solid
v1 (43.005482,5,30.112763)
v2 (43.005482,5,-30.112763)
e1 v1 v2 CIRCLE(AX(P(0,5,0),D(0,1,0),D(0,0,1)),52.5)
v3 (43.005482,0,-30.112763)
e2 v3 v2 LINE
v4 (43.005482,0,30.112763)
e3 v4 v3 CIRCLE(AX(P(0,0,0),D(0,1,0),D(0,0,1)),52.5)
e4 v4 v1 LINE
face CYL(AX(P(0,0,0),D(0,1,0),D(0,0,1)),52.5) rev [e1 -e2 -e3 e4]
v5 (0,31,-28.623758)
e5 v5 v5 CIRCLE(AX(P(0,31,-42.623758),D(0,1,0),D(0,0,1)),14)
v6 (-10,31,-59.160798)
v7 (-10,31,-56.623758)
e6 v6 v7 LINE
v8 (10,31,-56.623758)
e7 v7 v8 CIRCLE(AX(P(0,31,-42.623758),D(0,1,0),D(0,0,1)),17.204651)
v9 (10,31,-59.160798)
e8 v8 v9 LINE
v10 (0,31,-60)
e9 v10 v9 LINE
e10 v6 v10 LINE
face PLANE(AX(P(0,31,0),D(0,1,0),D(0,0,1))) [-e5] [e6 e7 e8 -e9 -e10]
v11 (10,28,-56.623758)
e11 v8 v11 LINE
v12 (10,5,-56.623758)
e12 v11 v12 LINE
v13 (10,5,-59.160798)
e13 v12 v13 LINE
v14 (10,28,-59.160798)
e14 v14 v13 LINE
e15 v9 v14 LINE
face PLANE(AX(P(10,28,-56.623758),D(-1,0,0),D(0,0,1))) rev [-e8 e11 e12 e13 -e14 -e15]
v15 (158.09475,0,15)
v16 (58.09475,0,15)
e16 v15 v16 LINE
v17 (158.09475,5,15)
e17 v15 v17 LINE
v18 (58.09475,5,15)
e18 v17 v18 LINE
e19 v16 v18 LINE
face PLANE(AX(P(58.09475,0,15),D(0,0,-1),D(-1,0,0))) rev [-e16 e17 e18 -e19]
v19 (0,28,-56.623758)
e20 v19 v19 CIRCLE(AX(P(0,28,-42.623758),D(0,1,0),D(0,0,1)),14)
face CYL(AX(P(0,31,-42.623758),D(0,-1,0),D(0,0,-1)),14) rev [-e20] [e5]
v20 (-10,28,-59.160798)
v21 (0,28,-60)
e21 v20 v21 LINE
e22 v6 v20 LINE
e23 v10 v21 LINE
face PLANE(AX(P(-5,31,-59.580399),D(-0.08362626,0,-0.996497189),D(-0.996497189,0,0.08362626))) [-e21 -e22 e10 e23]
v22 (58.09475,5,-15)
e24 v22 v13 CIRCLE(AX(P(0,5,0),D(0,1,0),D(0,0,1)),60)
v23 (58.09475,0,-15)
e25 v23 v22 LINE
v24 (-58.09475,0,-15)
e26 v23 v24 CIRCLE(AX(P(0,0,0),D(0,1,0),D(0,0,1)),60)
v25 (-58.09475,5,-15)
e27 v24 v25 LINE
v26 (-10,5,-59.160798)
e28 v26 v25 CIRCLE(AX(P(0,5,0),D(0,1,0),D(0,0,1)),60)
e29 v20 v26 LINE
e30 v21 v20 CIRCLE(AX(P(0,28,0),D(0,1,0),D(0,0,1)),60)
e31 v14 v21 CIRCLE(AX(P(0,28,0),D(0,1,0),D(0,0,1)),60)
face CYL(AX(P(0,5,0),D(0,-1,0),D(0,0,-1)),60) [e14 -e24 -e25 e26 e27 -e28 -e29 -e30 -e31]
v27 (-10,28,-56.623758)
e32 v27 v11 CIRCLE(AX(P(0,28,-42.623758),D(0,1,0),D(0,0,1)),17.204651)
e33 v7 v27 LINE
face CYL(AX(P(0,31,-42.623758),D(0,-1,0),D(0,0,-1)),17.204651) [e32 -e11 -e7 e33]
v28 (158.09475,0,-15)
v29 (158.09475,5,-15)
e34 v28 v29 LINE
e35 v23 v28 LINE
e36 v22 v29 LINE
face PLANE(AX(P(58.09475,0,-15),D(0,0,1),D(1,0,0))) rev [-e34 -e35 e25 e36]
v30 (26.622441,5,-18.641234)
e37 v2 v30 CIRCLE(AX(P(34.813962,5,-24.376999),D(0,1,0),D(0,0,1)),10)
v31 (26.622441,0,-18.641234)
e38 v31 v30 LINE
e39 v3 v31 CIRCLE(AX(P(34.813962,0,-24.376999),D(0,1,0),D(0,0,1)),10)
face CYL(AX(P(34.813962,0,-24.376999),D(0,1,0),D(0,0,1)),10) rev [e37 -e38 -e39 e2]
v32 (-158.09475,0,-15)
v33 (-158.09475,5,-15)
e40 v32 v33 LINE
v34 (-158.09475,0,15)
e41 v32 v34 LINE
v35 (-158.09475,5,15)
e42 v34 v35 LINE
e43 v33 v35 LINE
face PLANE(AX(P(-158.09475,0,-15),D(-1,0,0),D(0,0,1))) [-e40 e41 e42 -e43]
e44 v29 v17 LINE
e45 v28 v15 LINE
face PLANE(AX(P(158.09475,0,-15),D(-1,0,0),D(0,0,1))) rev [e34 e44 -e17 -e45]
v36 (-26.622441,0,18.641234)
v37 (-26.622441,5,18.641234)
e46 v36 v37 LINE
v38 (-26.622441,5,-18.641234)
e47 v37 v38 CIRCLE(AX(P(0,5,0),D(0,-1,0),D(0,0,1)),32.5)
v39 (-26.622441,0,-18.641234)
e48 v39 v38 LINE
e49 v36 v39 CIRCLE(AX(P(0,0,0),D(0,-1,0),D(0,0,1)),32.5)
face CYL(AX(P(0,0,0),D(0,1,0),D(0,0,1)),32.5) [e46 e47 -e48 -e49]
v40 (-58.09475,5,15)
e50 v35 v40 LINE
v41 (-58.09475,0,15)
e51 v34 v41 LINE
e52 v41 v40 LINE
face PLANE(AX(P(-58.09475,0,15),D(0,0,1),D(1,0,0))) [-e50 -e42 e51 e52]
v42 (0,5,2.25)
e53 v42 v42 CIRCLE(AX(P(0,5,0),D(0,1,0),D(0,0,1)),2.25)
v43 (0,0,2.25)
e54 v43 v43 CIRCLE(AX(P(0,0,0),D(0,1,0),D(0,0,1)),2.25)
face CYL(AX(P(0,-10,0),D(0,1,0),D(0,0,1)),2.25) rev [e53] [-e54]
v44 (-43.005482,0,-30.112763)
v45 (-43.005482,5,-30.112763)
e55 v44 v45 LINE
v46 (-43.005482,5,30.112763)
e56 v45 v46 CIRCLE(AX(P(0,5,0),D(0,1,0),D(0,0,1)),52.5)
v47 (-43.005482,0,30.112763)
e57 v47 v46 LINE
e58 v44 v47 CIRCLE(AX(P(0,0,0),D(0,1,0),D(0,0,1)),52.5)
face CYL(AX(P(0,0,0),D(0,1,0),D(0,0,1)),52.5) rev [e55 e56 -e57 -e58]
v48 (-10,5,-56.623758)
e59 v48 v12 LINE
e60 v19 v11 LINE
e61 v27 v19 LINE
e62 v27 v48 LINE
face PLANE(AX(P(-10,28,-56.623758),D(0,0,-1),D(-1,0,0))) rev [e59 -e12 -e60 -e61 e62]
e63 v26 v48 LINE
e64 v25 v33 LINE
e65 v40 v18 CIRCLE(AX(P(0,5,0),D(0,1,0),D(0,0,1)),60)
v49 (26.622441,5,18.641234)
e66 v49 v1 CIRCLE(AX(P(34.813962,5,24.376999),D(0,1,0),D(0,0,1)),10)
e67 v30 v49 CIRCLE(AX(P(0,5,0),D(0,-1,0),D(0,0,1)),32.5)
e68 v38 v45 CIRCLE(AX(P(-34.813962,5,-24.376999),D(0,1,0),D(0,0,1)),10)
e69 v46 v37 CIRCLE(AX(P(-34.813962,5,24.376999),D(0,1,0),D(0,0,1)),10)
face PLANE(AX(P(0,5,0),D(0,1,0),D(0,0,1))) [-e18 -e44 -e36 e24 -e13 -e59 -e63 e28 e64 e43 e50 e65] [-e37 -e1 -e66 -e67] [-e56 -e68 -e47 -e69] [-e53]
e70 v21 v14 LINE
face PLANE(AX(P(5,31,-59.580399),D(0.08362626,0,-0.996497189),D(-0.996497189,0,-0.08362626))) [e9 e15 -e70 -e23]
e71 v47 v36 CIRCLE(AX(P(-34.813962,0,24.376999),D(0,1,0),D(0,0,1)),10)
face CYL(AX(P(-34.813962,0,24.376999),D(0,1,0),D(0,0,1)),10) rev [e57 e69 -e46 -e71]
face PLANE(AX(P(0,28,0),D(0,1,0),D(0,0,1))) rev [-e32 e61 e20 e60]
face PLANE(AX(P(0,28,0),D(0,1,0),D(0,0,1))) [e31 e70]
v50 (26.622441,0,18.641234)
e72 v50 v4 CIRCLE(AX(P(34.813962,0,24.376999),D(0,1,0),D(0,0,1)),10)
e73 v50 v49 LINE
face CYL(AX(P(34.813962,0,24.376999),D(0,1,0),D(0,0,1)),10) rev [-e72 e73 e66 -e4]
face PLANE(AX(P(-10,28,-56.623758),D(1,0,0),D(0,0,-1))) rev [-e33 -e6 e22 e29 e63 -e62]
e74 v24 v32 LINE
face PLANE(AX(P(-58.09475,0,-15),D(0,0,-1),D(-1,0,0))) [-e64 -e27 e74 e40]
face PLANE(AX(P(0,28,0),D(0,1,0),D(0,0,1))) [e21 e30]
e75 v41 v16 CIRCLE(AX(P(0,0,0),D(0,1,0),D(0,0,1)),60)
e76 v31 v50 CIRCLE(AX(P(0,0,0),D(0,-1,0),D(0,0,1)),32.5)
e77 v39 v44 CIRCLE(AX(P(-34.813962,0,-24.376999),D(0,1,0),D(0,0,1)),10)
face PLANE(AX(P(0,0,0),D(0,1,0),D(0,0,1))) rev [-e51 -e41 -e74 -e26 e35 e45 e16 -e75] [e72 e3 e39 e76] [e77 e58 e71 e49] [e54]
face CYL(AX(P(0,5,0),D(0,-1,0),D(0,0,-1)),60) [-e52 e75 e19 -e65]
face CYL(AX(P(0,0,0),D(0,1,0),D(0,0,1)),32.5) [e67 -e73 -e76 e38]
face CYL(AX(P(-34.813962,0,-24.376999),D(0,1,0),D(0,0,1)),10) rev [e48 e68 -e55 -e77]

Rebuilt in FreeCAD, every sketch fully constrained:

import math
import FreeCAD as App
import Part
import Sketcher

V = App.Vector

doc = App.newDocument("Part")
body = doc.addObject("PartDesign::Body", "Body")

# Sketch on XZ plane
sketch1 = body.newObject("Sketcher::SketchObject", "Sketch")
sketch1.AttachmentSupport = (doc.getObject("XZ_Plane"), [""])
sketch1.MapMode = "FlatFace"
sketch1.addGeometry(Part.Circle(V(0, 0, 0), V(0, 0, 1), 60), False)
sketch1.addConstraint(Sketcher.Constraint("Coincident", 0, 3, -1, 1))
sketch1.addConstraint(Sketcher.Constraint("Diameter", 0, 120.0))
pad1 = body.newObject("PartDesign::Pad", "Pad")
pad1.Profile = sketch1
pad1.Length = 5
pad1.Reversed = True

# Sketch on XZ plane
sketch2 = body.newObject("Sketcher::SketchObject", "Sketch001")
sketch2.AttachmentSupport = (doc.getObject("XZ_Plane"), [""])
sketch2.MapMode = "FlatFace"
sketch2.AttachmentOffset = App.Placement(V(0, 0, -5), App.Rotation())
sketch2.addGeometry(Part.ArcOfCircle(Part.Circle(V(0, 0, 0), V(0, 0, 1), 52), math.radians(145), math.radians(215)), False)
sketch2.addGeometry(Part.ArcOfCircle(Part.Circle(V(-35, 24, 0), V(0, 0, 1), 10), math.radians(-35), math.radians(145)), False)
sketch2.addGeometry(Part.ArcOfCircle(Part.Circle(V(0, 0, 0), V(0, 0, 1), 32), math.radians(145), math.radians(215)), False)
sketch2.addGeometry(Part.ArcOfCircle(Part.Circle(V(-35, -24, 0), V(0, 0, 1), 10), math.radians(-145), math.radians(35)), False)
sketch2.addGeometry(Part.ArcOfCircle(Part.Circle(V(35, -24, 0), V(0, 0, 1), 10), math.radians(145), math.radians(325)), False)
sketch2.addGeometry(Part.ArcOfCircle(Part.Circle(V(0, 0, 0), V(0, 0, 1), 32), math.radians(-35), math.radians(35)), False)
sketch2.addGeometry(Part.ArcOfCircle(Part.Circle(V(35, 24, 0), V(0, 0, 1), 10), math.radians(35), math.radians(215)), False)
sketch2.addGeometry(Part.ArcOfCircle(Part.Circle(V(0, 0, 0), V(0, 0, 1), 52), math.radians(-35), math.radians(35)), False)
sketch2.addConstraint(Sketcher.Constraint("Tangent", 0, 1, 1, 2))
sketch2.addConstraint(Sketcher.Constraint("Tangent", 1, 1, 2, 1))
sketch2.addConstraint(Sketcher.Constraint("Tangent", 2, 2, 3, 2))
sketch2.addConstraint(Sketcher.Constraint("Tangent", 3, 1, 0, 2))
sketch2.addConstraint(Sketcher.Constraint("Tangent", 4, 1, 5, 1))
sketch2.addConstraint(Sketcher.Constraint("Tangent", 5, 2, 6, 2))
sketch2.addConstraint(Sketcher.Constraint("Tangent", 6, 1, 7, 2))
sketch2.addConstraint(Sketcher.Constraint("Tangent", 7, 1, 4, 2))
sketch2.addConstraint(Sketcher.Constraint("Coincident", 0, 3, -1, 1))
sketch2.addConstraint(Sketcher.Constraint("Coincident", 2, 3, -1, 1))
sketch2.addConstraint(Sketcher.Constraint("Coincident", 5, 3, -1, 1))
sketch2.addConstraint(Sketcher.Constraint("Coincident", 7, 3, -1, 1))
sketch2.addConstraint(Sketcher.Constraint("Equal", 3, 4))
sketch2.addConstraint(Sketcher.Constraint("Equal", 2, 5))
sketch2.addConstraint(Sketcher.Constraint("Horizontal", 3, 3, 4, 3))
sketch2.addConstraint(Sketcher.Constraint("Horizontal", 1, 3, 6, 3))
sketch2.addConstraint(Sketcher.Constraint("Vertical", 1, 3, 3, 3))
sketch2.addConstraint(Sketcher.Constraint("Radius", 1, 10.0))
sketch2.addConstraint(Sketcher.Constraint("Radius", 0, 52.5))
sketch2.addConstraint(Sketcher.Constraint("DistanceY", -1, 1, 1, 3, 24.376999))
pocket1 = body.newObject("PartDesign::Pocket", "Pocket")
pocket1.Profile = sketch2
pocket1.Length = 5
pocket1.Reversed = True

# Sketch on XZ plane
sketch3 = body.newObject("Sketcher::SketchObject", "Sketch002")
sketch3.AttachmentSupport = (doc.getObject("XZ_Plane"), [""])
sketch3.MapMode = "FlatFace"
sketch3.AttachmentOffset = App.Placement(V(0, 0, -5), App.Rotation())
sketch3.addGeometry(Part.LineSegment(V(10, -56.6, 0), V(10, -59.2, 0)), False)
sketch3.addGeometry(Part.ArcOfCircle(Part.Circle(V(0, 0, 0), V(0, 0, 1), 60), math.radians(-99.59), math.radians(-80.41)), False)
sketch3.addGeometry(Part.LineSegment(V(-10, -59.2, 0), V(-10, -56.6, 0)), False)
sketch3.addGeometry(Part.LineSegment(V(-10, -56.6, 0), V(10, -56.6, 0)), False)
sketch3.addConstraint(Sketcher.Constraint("Coincident", 0, 2, 1, 2))
sketch3.addConstraint(Sketcher.Constraint("Coincident", 1, 1, 2, 1))
sketch3.addConstraint(Sketcher.Constraint("Coincident", 2, 2, 3, 1))
sketch3.addConstraint(Sketcher.Constraint("Coincident", 3, 2, 0, 1))
sketch3.addConstraint(Sketcher.Constraint("Vertical", 0))
sketch3.addConstraint(Sketcher.Constraint("Vertical", 2))
sketch3.addConstraint(Sketcher.Constraint("Horizontal", 3))
sketch3.addConstraint(Sketcher.Constraint("Coincident", 1, 3, -1, 1))
sketch3.addConstraint(Sketcher.Constraint("Horizontal", 0, 2, 1, 1))
sketch3.addConstraint(Sketcher.Constraint("Radius", 1, 60.0))
sketch3.addConstraint(Sketcher.Constraint("DistanceX", 3, 1, 3, 2, 20.0))
sketch3.addConstraint(Sketcher.Constraint("DistanceY", 0, 2, 0, 1, 2.53704))
pad2 = body.newObject("PartDesign::Pad", "Pad001")
pad2.Profile = sketch3
pad2.Length = 23
pad2.Reversed = True

# Sketch on XZ plane
sketch4 = body.newObject("Sketcher::SketchObject", "Sketch003")
sketch4.AttachmentSupport = (doc.getObject("XZ_Plane"), [""])
sketch4.MapMode = "FlatFace"
sketch4.AttachmentOffset = App.Placement(V(0, 0, -5), App.Rotation())
sketch4.addGeometry(Part.Circle(V(0, 0, 0), V(0, 0, 1), 2.2), False)
sketch4.addConstraint(Sketcher.Constraint("Coincident", 0, 3, -1, 1))
sketch4.addConstraint(Sketcher.Constraint("Diameter", 0, 4.5))
pocket2 = body.newObject("PartDesign::Pocket", "Pocket001")
pocket2.Profile = sketch4
pocket2.Length = 15
pocket2.Reversed = True

# Sketch on XZ plane
sketch5 = body.newObject("Sketcher::SketchObject", "Sketch004")
sketch5.AttachmentSupport = (doc.getObject("XZ_Plane"), [""])
sketch5.MapMode = "FlatFace"
sketch5.addGeometry(Part.LineSegment(V(-58, -15, 0), V(-158, -15, 0)), False)
sketch5.addGeometry(Part.LineSegment(V(-158, -15, 0), V(-158, 15, 0)), False)
sketch5.addGeometry(Part.LineSegment(V(-158, 15, 0), V(-58, 15, 0)), False)
sketch5.addGeometry(Part.ArcOfCircle(Part.Circle(V(0, 0, 0), V(0, 0, 1), 60), math.radians(166), math.radians(194)), False)
sketch5.addConstraint(Sketcher.Constraint("Coincident", 0, 2, 1, 1))
sketch5.addConstraint(Sketcher.Constraint("Coincident", 1, 2, 2, 1))
sketch5.addConstraint(Sketcher.Constraint("Coincident", 2, 2, 3, 1))
sketch5.addConstraint(Sketcher.Constraint("Coincident", 3, 2, 0, 1))
sketch5.addConstraint(Sketcher.Constraint("Horizontal", 0))
sketch5.addConstraint(Sketcher.Constraint("Vertical", 1))
sketch5.addConstraint(Sketcher.Constraint("Horizontal", 2))
sketch5.addConstraint(Sketcher.Constraint("Coincident", 3, 3, -1, 1))
sketch5.addConstraint(Sketcher.Constraint("Vertical", 2, 2, 3, 2))
sketch5.addConstraint(Sketcher.Constraint("Radius", 3, 60.0))
sketch5.addConstraint(Sketcher.Constraint("DistanceX", 0, 2, 0, 1, 100.0))
sketch5.addConstraint(Sketcher.Constraint("DistanceY", 1, 1, 1, 2, 30.0))
pad3 = body.newObject("PartDesign::Pad", "Pad002")
pad3.Profile = sketch5
pad3.Length = 5
pad3.Reversed = True
doc.recompute()

mirrored = body.newObject("PartDesign::Mirrored", "Mirrored")
mirrored.Originals = [pad3]
mirrored.MirrorPlane = (doc.getObject("YZ_Plane"), [""])
body.Tip = mirrored

# Sketch on XZ plane
sketch6 = body.newObject("Sketcher::SketchObject", "Sketch005")
sketch6.AttachmentSupport = (doc.getObject("XZ_Plane"), [""])
sketch6.MapMode = "FlatFace"
sketch6.AttachmentOffset = App.Placement(V(0, 0, -28), App.Rotation())
sketch6.addGeometry(Part.LineSegment(V(-10, -59.2, 0), V(-10, -56.6, 0)), False)
sketch6.addGeometry(Part.ArcOfCircle(Part.Circle(V(0, -42.6, 0), V(0, 0, 1), 17.2), math.radians(-54), math.radians(234)), False)
sketch6.addGeometry(Part.LineSegment(V(10, -56.6, 0), V(10, -59.2, 0)), False)
sketch6.addGeometry(Part.LineSegment(V(10, -59.2, 0), V(0, -60, 0)), False)
sketch6.addGeometry(Part.LineSegment(V(0, -60, 0), V(-10, -59.2, 0)), False)
sketch6.addGeometry(Part.Circle(V(0, -42.6, 0), V(0, 0, 1), 14), False)
sketch6.addConstraint(Sketcher.Constraint("Coincident", 0, 2, 1, 2))
sketch6.addConstraint(Sketcher.Constraint("Coincident", 1, 1, 2, 1))
sketch6.addConstraint(Sketcher.Constraint("Coincident", 2, 2, 3, 1))
sketch6.addConstraint(Sketcher.Constraint("Coincident", 3, 2, 4, 1))
sketch6.addConstraint(Sketcher.Constraint("Coincident", 4, 2, 0, 1))
sketch6.addConstraint(Sketcher.Constraint("Vertical", 0))
sketch6.addConstraint(Sketcher.Constraint("Vertical", 2))
sketch6.addConstraint(Sketcher.Constraint("Coincident", 5, 3, 1, 3))
sketch6.addConstraint(Sketcher.Constraint("Symmetric", 0, 2, 1, 1, -2))
sketch6.addConstraint(Sketcher.Constraint("PointOnObject", 3, 2, -2))
sketch6.addConstraint(Sketcher.Constraint("Horizontal", 2, 2, 4, 2))
sketch6.addConstraint(Sketcher.Constraint("Diameter", 5, 28.0))
sketch6.addConstraint(Sketcher.Constraint("DistanceX", 0, 2, -1, 1, 10.0))
sketch6.addConstraint(Sketcher.Constraint("DistanceY", 3, 2, -1, 1, 60.0))
sketch6.addConstraint(Sketcher.Constraint("DistanceY", 0, 2, 5, 3, 14.0))
sketch6.addConstraint(Sketcher.Constraint("DistanceY", 0, 1, 0, 2, 2.53704))
sketch6.addConstraint(Sketcher.Constraint("Distance", 3, 10.035151))
pad4 = body.newObject("PartDesign::Pad", "Pad003")
pad4.Profile = sketch6
pad4.Length = 3
pad4.Reversed = True

doc.recompute()
